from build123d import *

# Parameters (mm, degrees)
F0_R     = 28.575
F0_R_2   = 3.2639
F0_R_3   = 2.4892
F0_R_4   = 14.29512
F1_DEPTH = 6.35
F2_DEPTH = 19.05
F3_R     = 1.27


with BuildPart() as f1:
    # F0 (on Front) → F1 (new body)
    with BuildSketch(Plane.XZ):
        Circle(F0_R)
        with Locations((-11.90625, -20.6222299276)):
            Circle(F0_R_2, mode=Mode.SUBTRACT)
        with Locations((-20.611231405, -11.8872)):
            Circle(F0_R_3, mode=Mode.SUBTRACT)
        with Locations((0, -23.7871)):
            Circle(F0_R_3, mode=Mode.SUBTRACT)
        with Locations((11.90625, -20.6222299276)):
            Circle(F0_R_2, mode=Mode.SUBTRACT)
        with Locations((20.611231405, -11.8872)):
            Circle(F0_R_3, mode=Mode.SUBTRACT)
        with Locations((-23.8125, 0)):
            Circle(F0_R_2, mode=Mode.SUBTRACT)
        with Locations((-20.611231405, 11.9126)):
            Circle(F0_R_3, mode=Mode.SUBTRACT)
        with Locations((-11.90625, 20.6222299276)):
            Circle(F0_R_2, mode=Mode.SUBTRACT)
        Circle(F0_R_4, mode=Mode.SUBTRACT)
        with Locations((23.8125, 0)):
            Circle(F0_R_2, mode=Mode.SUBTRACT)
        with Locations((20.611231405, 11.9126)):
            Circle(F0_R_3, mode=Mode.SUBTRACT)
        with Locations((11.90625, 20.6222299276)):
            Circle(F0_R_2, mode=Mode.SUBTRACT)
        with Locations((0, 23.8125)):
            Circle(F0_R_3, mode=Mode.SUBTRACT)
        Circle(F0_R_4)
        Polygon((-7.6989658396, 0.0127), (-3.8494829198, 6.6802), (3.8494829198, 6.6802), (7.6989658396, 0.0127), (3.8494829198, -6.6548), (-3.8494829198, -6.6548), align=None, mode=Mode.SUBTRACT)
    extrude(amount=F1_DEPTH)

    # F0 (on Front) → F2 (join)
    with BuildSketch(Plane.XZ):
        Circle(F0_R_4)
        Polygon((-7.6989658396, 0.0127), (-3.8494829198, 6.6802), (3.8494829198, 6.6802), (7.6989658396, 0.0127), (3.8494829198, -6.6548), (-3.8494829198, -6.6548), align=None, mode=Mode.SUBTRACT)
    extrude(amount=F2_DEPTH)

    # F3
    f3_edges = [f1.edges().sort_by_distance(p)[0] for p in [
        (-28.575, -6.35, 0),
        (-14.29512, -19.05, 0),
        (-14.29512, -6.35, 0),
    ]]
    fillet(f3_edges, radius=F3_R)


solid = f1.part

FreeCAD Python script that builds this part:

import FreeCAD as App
import Part
import Sketcher
Q = App.Units.Quantity


def edges_at(feature, points):
    """Names of the edges that pass closest to the given points."""
    edges = feature.Shape.Edges
    near = lambda p: min(range(len(edges)), key=lambda i: edges[i].distToShape(Part.Vertex(*p))[0])
    return sorted({f"Edge{near(p) + 1}" for p in points})

doc = App.newDocument("Part")
params = doc.addObject("Spreadsheet::Sheet", "Params")
for row, (alias, value) in enumerate([
    ("sketch1_diameter", "2.25 in"),
    ("sketch1_diameter2", "0.257 in"),
    ("sketch1_diameter3", "0.196 in"),
    ("pad1_length", "0.25 in"),
    ("pad2_length", "0.75 in"),
    ("fillet_radius", "0.05 in"),
], start=1):
    params.set(f"A{row}", alias)
    params.set(f"B{row}", "=" + value)
    params.setAlias(f"B{row}", alias)

body = doc.addObject("PartDesign::Body", "Body")

sketch1 = body.newObject("Sketcher::SketchObject", "Sketch")
sketch1.AttachmentSupport = (doc.getObject("XZ_Plane"), [""])
sketch1.MapMode = "FlatFace"
sketch1.addGeometry([
    Part.Circle(App.Vector(0, 0, 0), App.Vector(0, 0, 1), 28.575),
    Part.Circle(App.Vector(-11.90625, -20.62223, 0), App.Vector(0, 0, 1), 3.2639),
    Part.Circle(App.Vector(-20.611231, -11.8872, 0), App.Vector(0, 0, 1), 2.4892),
    Part.Circle(App.Vector(-23.8125, 0, 0), App.Vector(0, 0, 1), 3.2639),
    Part.Circle(App.Vector(0, -23.7871, 0), App.Vector(0, 0, 1), 2.4892),
    Part.Circle(App.Vector(11.90625, -20.62223, 0), App.Vector(0, 0, 1), 3.2639),
    Part.Circle(App.Vector(20.611231, -11.8872, 0), App.Vector(0, 0, 1), 2.4892),
    Part.Circle(App.Vector(23.8125, 0, 0), App.Vector(0, 0, 1), 3.2639),
    Part.Circle(App.Vector(-20.611231, 11.9126, 0), App.Vector(0, 0, 1), 2.4892),
    Part.Circle(App.Vector(-11.90625, 20.62223, 0), App.Vector(0, 0, 1), 3.2639),
    Part.LineSegment(App.Vector(-3.849483, -6.6548, 0), App.Vector(-7.698966, 0.0127, 0)),
    Part.LineSegment(App.Vector(-7.698966, 0.0127, 0), App.Vector(-3.849483, 6.6802, 0)),
    Part.LineSegment(App.Vector(-3.849483, 6.6802, 0), App.Vector(3.849483, 6.6802, 0)),
    Part.LineSegment(App.Vector(3.849483, 6.6802, 0), App.Vector(7.698966, 0.0127, 0)),
    Part.LineSegment(App.Vector(7.698966, 0.0127, 0), App.Vector(3.849483, -6.6548, 0)),
    Part.LineSegment(App.Vector(3.849483, -6.6548, 0), App.Vector(-3.849483, -6.6548, 0)),
    Part.Circle(App.Vector(20.611231, 11.9126, 0), App.Vector(0, 0, 1), 2.4892),
    Part.Circle(App.Vector(0, 23.8125, 0), App.Vector(0, 0, 1), 2.4892),
    Part.Circle(App.Vector(11.90625, 20.62223, 0), App.Vector(0, 0, 1), 3.2639),
], False)
sketch1.addConstraint([
    Sketcher.Constraint("Coincident", 10, 2, 11, 1),
    Sketcher.Constraint("Coincident", 11, 2, 12, 1),
    Sketcher.Constraint("Coincident", 12, 2, 13, 1),
    Sketcher.Constraint("Coincident", 13, 2, 14, 1),
    Sketcher.Constraint("Coincident", 14, 2, 15, 1),
    Sketcher.Constraint("Coincident", 15, 2, 10, 1),
    Sketcher.Constraint("Horizontal", 12),
    Sketcher.Constraint("Horizontal", 15),
    Sketcher.Constraint("Coincident", 0, 3, -1, 1),
    Sketcher.Constraint("Equal", 1, 3),
    Sketcher.Constraint("Equal", 2, 4),
    Sketcher.Constraint("Equal", 3, 5),
    Sketcher.Constraint("Equal", 4, 6),
    Sketcher.Constraint("Equal", 5, 7),
    Sketcher.Constraint("Equal", 6, 8),
    Sketcher.Constraint("Equal", 7, 9),
    Sketcher.Constraint("Equal", 8, 16),
    Sketcher.Constraint("Equal", 16, 17),
    Sketcher.Constraint("Equal", 9, 18),
    Sketcher.Constraint("Symmetric", 3, 3, 7, 3, -1, 1),
    Sketcher.Constraint("Symmetric", 5, 3, 9, 3, -1, 1),
    Sketcher.Constraint("Symmetric", 1, 3, 18, 3, -1, 1),
    Sketcher.Constraint("Symmetric", 1, 3, 5, 3, -2),
    Sketcher.Constraint("Symmetric", 2, 3, 6, 3, -2),
    Sketcher.Constraint("Symmetric", 8, 3, 16, 3, -2),
    Sketcher.Constraint("Symmetric", 10, 2, 13, 2, -2),
    Sketcher.Constraint("PointOnObject", 3, 3, -1),
    Sketcher.Constraint("PointOnObject", 4, 3, -2),
    Sketcher.Constraint("PointOnObject", 17, 3, -2),
    Sketcher.Constraint("Parallel", 10, 13),
    Sketcher.Constraint("Parallel", 11, 14),
    Sketcher.Constraint("Vertical", 2, 3, 8, 3),
    Sketcher.Constraint("Vertical", 12, 2, 14, 2),
    Sketcher.Constraint("Vertical", 11, 2, 15, 2),
    Sketcher.Constraint("Diameter", 0, Q("2.25 in")),
    Sketcher.Constraint("Diameter", 1, Q("0.257 in")),
    Sketcher.Constraint("Diameter", 2, Q("0.196 in")),
    Sketcher.Constraint("Angle", 10, Q("120 deg")),
    Sketcher.Constraint("DistanceX", 1, 3, -1, 1, Q("0.46875 in")),
    Sketcher.Constraint("DistanceY", 2, 3, -1, 1, Q("0.468 in")),
    Sketcher.Constraint("DistanceX", 3, 3, -1, 1, Q("0.9375 in")),
    Sketcher.Constraint("DistanceY", -1, 1, 8, 3, Q("0.469 in")),
    Sketcher.Constraint("DistanceY", -1, 1, 17, 3, Q("0.9375 in")),
    Sketcher.Constraint("DistanceY", -1, 1, 11, 2, Q("0.263 in")),
    Sketcher.Constraint("DistanceY", 14, 2, -1, 1, Q("0.262 in")),
    Sketcher.Constraint("DistanceY", 4, 3, -1, 1, Q("0.9365 in")),
    Sketcher.Constraint("DistanceX", 12, 1, 12, 2, Q("7.698966 mm")),
    Sketcher.Constraint("DistanceY", 1, 3, -1, 1, Q("20.62223 mm")),
    Sketcher.Constraint("DistanceX", 2, 3, -1, 1, Q("20.611231 mm")),
])
sketch1.setExpression("Constraints[34]", "Params.sketch1_diameter")
sketch1.setExpression("Constraints[35]", "Params.sketch1_diameter2")
sketch1.setExpression("Constraints[36]", "Params.sketch1_diameter3")
pad1 = body.newObject("PartDesign::Pad", "Pad")
pad1.Profile = sketch1
pad1.setExpression("Length", "Params.pad1_length")

sketch2 = body.newObject("Sketcher::SketchObject", "Sketch001")
sketch2.AttachmentSupport = (doc.getObject("XZ_Plane"), [""])
sketch2.MapMode = "FlatFace"
sketch2.addGeometry([
    Part.Circle(App.Vector(0, 0, 0), App.Vector(0, 0, 1), 14.29512),
    Part.LineSegment(App.Vector(-3.849483, -6.6548, 0), App.Vector(-7.698966, 0.0127, 0)),
    Part.LineSegment(App.Vector(-7.698966, 0.0127, 0), App.Vector(-3.849483, 6.6802, 0)),
    Part.LineSegment(App.Vector(-3.849483, 6.6802, 0), App.Vector(3.849483, 6.6802, 0)),
    Part.LineSegment(App.Vector(3.849483, 6.6802, 0), App.Vector(7.698966, 0.0127, 0)),
    Part.LineSegment(App.Vector(7.698966, 0.0127, 0), App.Vector(3.849483, -6.6548, 0)),
    Part.LineSegment(App.Vector(3.849483, -6.6548, 0), App.Vector(-3.849483, -6.6548, 0)),
], False)
sketch2.addConstraint([
    Sketcher.Constraint("Coincident", 1, 2, 2, 1),
    Sketcher.Constraint("Coincident", 2, 2, 3, 1),
    Sketcher.Constraint("Coincident", 3, 2, 4, 1),
    Sketcher.Constraint("Coincident", 4, 2, 5, 1),
    Sketcher.Constraint("Coincident", 5, 2, 6, 1),
    Sketcher.Constraint("Coincident", 6, 2, 1, 1),
    Sketcher.Constraint("Horizontal", 3),
    Sketcher.Constraint("Horizontal", 6),
    Sketcher.Constraint("Coincident", 0, 3, -1, 1),
    Sketcher.Constraint("Symmetric", 1, 2, 4, 2, -2),
    Sketcher.Constraint("Parallel", 1, 4),
    Sketcher.Constraint("Parallel", 2, 5),
    Sketcher.Constraint("Vertical", 3, 2, 5, 2),
    Sketcher.Constraint("Vertical", 2, 2, 6, 2),
    Sketcher.Constraint("Angle", 1, Q("120 deg")),
    Sketcher.Constraint("Diameter", 0, Q("1.1256 in")),
    Sketcher.Constraint("DistanceY", -1, 1, 2, 2, Q("0.263 in")),
    Sketcher.Constraint("DistanceY", 5, 2, -1, 1, Q("0.262 in")),
    Sketcher.Constraint("DistanceX", 3, 1, 3, 2, Q("7.698966 mm")),
])
pad2 = body.newObject("PartDesign::Pad", "Pad001")
pad2.Profile = sketch2
pad2.setExpression("Length", "Params.pad2_length")
doc.recompute()

fillet = body.newObject("PartDesign::Fillet", "Fillet")
fillet.Base = (pad2, edges_at(pad2, [(-28.575, -6.35, 0), (-14.295, -19.05, 0), (-14.295, -6.35, 0)]))
fillet.setExpression("Radius", "Params.fillet_radius")

doc.recompute()
